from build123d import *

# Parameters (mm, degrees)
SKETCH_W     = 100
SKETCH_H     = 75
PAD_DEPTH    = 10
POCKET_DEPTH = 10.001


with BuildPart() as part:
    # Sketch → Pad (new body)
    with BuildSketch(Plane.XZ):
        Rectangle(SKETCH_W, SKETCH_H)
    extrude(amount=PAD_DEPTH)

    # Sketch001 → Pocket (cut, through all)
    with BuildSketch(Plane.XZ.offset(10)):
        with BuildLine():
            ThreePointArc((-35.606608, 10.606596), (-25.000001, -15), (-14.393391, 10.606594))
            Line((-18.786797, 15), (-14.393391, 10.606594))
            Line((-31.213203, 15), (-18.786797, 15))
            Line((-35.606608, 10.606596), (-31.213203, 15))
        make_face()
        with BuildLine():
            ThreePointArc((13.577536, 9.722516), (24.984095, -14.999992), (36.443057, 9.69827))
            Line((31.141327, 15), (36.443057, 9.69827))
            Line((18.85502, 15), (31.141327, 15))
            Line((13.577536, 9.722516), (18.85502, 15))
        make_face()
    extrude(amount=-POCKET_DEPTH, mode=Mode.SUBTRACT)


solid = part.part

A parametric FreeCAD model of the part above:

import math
import FreeCAD as App
import Part
import Sketcher
from FreeCAD import Vector


def add_polygon(sketch, points):
    """Adds a closed chain of lines whose ends are joined by coincident constraints."""
    first, n = sketch.GeometryCount, len(points)
    for a, b in zip(points, points[1:] + points[:1]):
        sketch.addGeometry(Part.LineSegment(App.Vector(*a, 0), App.Vector(*b, 0)), False)
    for i in range(n):
        sketch.addConstraint(Sketcher.Constraint("Coincident", first + i, 2, first + (i + 1) % n, 1))

doc = App.newDocument("Part")
body = doc.addObject("PartDesign::Body", "Body")

# Sketch on XZ plane
sketch1 = body.newObject("Sketcher::SketchObject", "Sketch")
sketch1.AttachmentSupport = (doc.getObject("XZ_Plane"), [""])
sketch1.MapMode = "FlatFace"
add_polygon(sketch1, [(-50, 38), (-50, -38), (50, -38), (50, 38)])  # lines 0-3
sketch1.addConstraint([
    Sketcher.Constraint("Vertical", 0),
    Sketcher.Constraint("Horizontal", 1),
    Sketcher.Constraint("Vertical", 2),
    Sketcher.Constraint("Horizontal", 3),
    Sketcher.Constraint("Symmetric", 0, 2, 2, 2, -1, 1),
    Sketcher.Constraint("DistanceX", 1, 1, 1, 2, 100.0),
    Sketcher.Constraint("DistanceY", 0, 2, 0, 1, 75.0),
])
pad1 = body.newObject("PartDesign::Pad", "Pad")
pad1.Profile = sketch1
pad1.Length = 10

# Sketch on XZ plane
sketch2 = body.newObject("Sketcher::SketchObject", "Sketch001")
sketch2.AttachmentSupport = (doc.getObject("XZ_Plane"), [""])
sketch2.MapMode = "FlatFace"
sketch2.AttachmentOffset = App.Placement(Vector(0, 0, 10), App.Rotation())
sketch2.addGeometry([
    Part.ArcOfCircle(Part.Circle(Vector(-25, 0, 0), Vector(0, 0, 1), 15), math.radians(135), math.radians(405)),  # 0
    Part.LineSegment(Vector(-14, 11, 0), Vector(-19, 15, 0)),  # 1
    Part.LineSegment(Vector(-19, 15, 0), Vector(-31, 15, 0)),  # 2
    Part.LineSegment(Vector(-31, 15, 0), Vector(-36, 11, 0)),  # 3
    Part.ArcOfCircle(Part.Circle(Vector(25, 0, 0), Vector(0, 0, 1), 15), math.radians(140), math.radians(400)),  # 4
    Part.LineSegment(Vector(36, 10, 0), Vector(31, 15, 0)),  # 5
    Part.LineSegment(Vector(31, 15, 0), Vector(19, 15, 0)),  # 6
    Part.LineSegment(Vector(19, 15, 0), Vector(14, 10, 0)),  # 7
], False)
sketch2.addConstraint([
    Sketcher.Constraint("Tangent", 0, 2, 1, 1),
    Sketcher.Constraint("Coincident", 1, 2, 2, 1),
    Sketcher.Constraint("Coincident", 2, 2, 3, 1),
    Sketcher.Constraint("Tangent", 3, 2, 0, 1),
    Sketcher.Constraint("Coincident", 4, 2, 5, 1),
    Sketcher.Constraint("Coincident", 5, 2, 6, 1),
    Sketcher.Constraint("Coincident", 6, 2, 7, 1),
    Sketcher.Constraint("Coincident", 7, 2, 4, 1),
    Sketcher.Constraint("Horizontal", 2),
    Sketcher.Constraint("Horizontal", 6),
    Sketcher.Constraint("Equal", 0, 4),
    Sketcher.Constraint("Symmetric", 0, 3, 4, 3, -1, 1),
    Sketcher.Constraint("PointOnObject", 0, 3, -1),
    Sketcher.Constraint("Perpendicular", 1, 3),
    Sketcher.Constraint("Perpendicular", 3, 5),
    Sketcher.Constraint("Perpendicular", 5, 7),
    Sketcher.Constraint("Horizontal", 0, 2, 3, 2),
    Sketcher.Constraint("Horizontal", 2, 2, 5, 2),
    Sketcher.Constraint("Radius", 0, 15.0),
    Sketcher.Constraint("DistanceX", 0, 3, -1, 1, 25.0),
    Sketcher.Constraint("DistanceY", -1, 1, 1, 2, 15.0),
    Sketcher.Constraint("Distance", 5, 7.497778),
    Sketcher.Constraint("Distance", 7, 7.463489),
])
pocket1 = body.newObject("PartDesign::Pocket", "Pocket")
pocket1.Profile = sketch2
pocket1.Type = "ThroughAll"

doc.recompute()
